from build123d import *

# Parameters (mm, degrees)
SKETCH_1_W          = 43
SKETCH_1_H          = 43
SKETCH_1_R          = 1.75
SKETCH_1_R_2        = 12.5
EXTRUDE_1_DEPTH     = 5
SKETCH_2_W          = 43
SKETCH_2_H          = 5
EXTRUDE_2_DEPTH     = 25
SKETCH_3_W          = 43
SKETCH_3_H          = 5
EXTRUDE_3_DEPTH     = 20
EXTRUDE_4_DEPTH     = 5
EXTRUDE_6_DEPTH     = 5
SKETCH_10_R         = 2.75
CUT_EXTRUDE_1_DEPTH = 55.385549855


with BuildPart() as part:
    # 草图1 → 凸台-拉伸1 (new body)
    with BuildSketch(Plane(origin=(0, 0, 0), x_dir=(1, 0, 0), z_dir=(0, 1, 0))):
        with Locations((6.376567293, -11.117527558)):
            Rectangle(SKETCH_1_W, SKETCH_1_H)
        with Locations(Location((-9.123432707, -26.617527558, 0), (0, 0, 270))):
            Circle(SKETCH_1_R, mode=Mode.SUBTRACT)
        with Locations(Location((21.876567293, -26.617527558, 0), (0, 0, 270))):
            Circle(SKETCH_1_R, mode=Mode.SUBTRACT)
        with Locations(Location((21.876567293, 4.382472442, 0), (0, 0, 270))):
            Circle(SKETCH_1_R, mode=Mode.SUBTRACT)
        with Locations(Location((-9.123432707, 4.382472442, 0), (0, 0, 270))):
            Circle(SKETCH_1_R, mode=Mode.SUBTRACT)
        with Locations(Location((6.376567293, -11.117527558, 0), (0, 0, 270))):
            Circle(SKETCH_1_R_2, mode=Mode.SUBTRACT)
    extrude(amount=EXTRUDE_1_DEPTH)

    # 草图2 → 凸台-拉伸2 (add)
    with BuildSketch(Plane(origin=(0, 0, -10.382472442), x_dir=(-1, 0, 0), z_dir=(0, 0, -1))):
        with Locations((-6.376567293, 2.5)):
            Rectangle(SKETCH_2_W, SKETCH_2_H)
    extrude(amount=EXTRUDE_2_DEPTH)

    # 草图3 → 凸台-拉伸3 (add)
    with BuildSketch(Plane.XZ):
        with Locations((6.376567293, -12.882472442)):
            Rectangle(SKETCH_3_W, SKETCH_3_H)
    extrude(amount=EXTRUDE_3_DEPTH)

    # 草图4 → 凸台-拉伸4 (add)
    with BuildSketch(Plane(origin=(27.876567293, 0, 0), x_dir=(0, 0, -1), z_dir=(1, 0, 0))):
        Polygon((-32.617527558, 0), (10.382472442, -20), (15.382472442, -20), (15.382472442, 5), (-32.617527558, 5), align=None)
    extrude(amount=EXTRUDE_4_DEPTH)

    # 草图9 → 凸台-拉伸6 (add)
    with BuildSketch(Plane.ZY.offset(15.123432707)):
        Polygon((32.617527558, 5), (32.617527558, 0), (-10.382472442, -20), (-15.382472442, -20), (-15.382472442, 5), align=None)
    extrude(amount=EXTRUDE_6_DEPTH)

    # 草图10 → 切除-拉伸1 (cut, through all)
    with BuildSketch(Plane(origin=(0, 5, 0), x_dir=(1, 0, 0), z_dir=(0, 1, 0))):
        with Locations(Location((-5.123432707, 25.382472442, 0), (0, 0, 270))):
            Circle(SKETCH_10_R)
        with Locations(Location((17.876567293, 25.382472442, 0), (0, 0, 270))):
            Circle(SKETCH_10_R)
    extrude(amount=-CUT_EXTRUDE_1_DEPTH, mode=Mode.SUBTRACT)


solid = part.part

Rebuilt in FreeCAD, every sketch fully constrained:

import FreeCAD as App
import Part
import Sketcher
Q = App.Units.Quantity

doc = App.newDocument("Part")
body = doc.addObject("PartDesign::Body", "Body")

# Sketch on XZ plane
sketch1 = doc.addObject("Sketcher::SketchObject", "Sketch")
body.addObject(sketch1)
sketch1.AttachmentSupport = (doc.XZ_Plane, [""])
sketch1.MapMode = "FlatFace"
sketch1.addGeometry(Part.LineSegment(App.Vector(-15.1, -10.4, 0), App.Vector(-15.1, 32.6, 0)), False)
sketch1.addGeometry(Part.LineSegment(App.Vector(-15.1, 32.6, 0), App.Vector(27.9, 32.6, 0)), False)
sketch1.addGeometry(Part.LineSegment(App.Vector(27.9, 32.6, 0), App.Vector(27.9, -10.4, 0)), False)
sketch1.addGeometry(Part.LineSegment(App.Vector(27.9, -10.4, 0), App.Vector(-15.1, -10.4, 0)), False)
sketch1.addGeometry(Part.Circle(App.Vector(-9.1, 26.6, 0), App.Vector(0, 0, 1), 1.8), False)
sketch1.addGeometry(Part.Circle(App.Vector(21.9, 26.6, 0), App.Vector(0, 0, 1), 1.8), False)
sketch1.addGeometry(Part.Circle(App.Vector(-9.1, -4.4, 0), App.Vector(0, 0, 1), 1.8), False)
sketch1.addGeometry(Part.Circle(App.Vector(6.4, 11.1, 0), App.Vector(0, 0, 1), 12.5), False)
sketch1.addGeometry(Part.Circle(App.Vector(21.9, -4.4, 0), App.Vector(0, 0, 1), 1.8), False)
sketch1.addConstraint(Sketcher.Constraint("Coincident", 0, 2, 1, 1))
sketch1.addConstraint(Sketcher.Constraint("Coincident", 1, 2, 2, 1))
sketch1.addConstraint(Sketcher.Constraint("Coincident", 2, 2, 3, 1))
sketch1.addConstraint(Sketcher.Constraint("Coincident", 3, 2, 0, 1))
sketch1.addConstraint(Sketcher.Constraint("Vertical", 0))
sketch1.addConstraint(Sketcher.Constraint("Horizontal", 1))
sketch1.addConstraint(Sketcher.Constraint("Vertical", 2))
sketch1.addConstraint(Sketcher.Constraint("Horizontal", 3))
sketch1.addConstraint(Sketcher.Constraint("Equal", 4, 5))
sketch1.addConstraint(Sketcher.Constraint("Equal", 5, 6))
sketch1.addConstraint(Sketcher.Constraint("Equal", 6, 8))
sketch1.addConstraint(Sketcher.Constraint("Horizontal", 4, 3, 5, 3))
sketch1.addConstraint(Sketcher.Constraint("Horizontal", 6, 3, 8, 3))
sketch1.addConstraint(Sketcher.Constraint("Vertical", 4, 3, 6, 3))
sketch1.addConstraint(Sketcher.Constraint("Vertical", 5, 3, 8, 3))
sketch1.addConstraint(Sketcher.Constraint("Equal", 3, 0))
sketch1.addConstraint(Sketcher.Constraint("Diameter", 7, Q("25 mm")))
sketch1.addConstraint(Sketcher.Constraint("Diameter", 4, Q("3.5 mm")))
sketch1.addConstraint(Sketcher.Constraint("DistanceX", 1, 1, 1, 2, Q("43 mm")))
sketch1.addConstraint(Sketcher.Constraint("DistanceX", 4, 3, 5, 3, Q("31 mm")))
sketch1.addConstraint(Sketcher.Constraint("DistanceY", 6, 3, 4, 3, Q("31 mm")))
sketch1.addConstraint(Sketcher.Constraint("DistanceX", 0, 2, 4, 3, Q("6 mm")))
sketch1.addConstraint(Sketcher.Constraint("DistanceY", 4, 3, 0, 2, Q("6 mm")))
sketch1.addConstraint(Sketcher.Constraint("DistanceX", 4, 3, 7, 3, Q("15.5 mm")))
sketch1.addConstraint(Sketcher.Constraint("DistanceY", 7, 3, 4, 3, Q("15.5 mm")))
sketch1.addConstraint(Sketcher.Constraint("DistanceX", 4, 3, -1, 1, Q("9.123433 mm")))
sketch1.addConstraint(Sketcher.Constraint("DistanceY", -1, 1, 4, 3, Q("26.617528 mm")))
pad1 = doc.addObject("PartDesign::Pad", "Pad")
body.addObject(pad1)
pad1.Profile = sketch1
pad1.Length = 5
pad1.Reversed = True

# Sketch on XY plane
sketch2 = doc.addObject("Sketcher::SketchObject", "Sketch001")
body.addObject(sketch2)
sketch2.AttachmentSupport = (doc.XY_Plane, [""])
sketch2.MapMode = "FlatFace"
sketch2.AttachmentOffset = App.Placement(App.Vector(0, 0, -10.382472), App.Rotation())
sketch2.addGeometry(Part.LineSegment(App.Vector(28, 5, 0), App.Vector(28, 0, 0)), False)
sketch2.addGeometry(Part.LineSegment(App.Vector(28, 0, 0), App.Vector(-15, 0, 0)), False)
sketch2.addGeometry(Part.LineSegment(App.Vector(-15, 0, 0), App.Vector(-15, 5, 0)), False)
sketch2.addGeometry(Part.LineSegment(App.Vector(-15, 5, 0), App.Vector(28, 5, 0)), False)
sketch2.addConstraint(Sketcher.Constraint("Coincident", 0, 2, 1, 1))
sketch2.addConstraint(Sketcher.Constraint("Coincident", 1, 2, 2, 1))
sketch2.addConstraint(Sketcher.Constraint("Coincident", 2, 2, 3, 1))
sketch2.addConstraint(Sketcher.Constraint("Coincident", 3, 2, 0, 1))
sketch2.addConstraint(Sketcher.Constraint("Vertical", 0))
sketch2.addConstraint(Sketcher.Constraint("Horizontal", 1))
sketch2.addConstraint(Sketcher.Constraint("Vertical", 2))
sketch2.addConstraint(Sketcher.Constraint("Horizontal", 3))
sketch2.addConstraint(Sketcher.Constraint("PointOnObject", 0, 2, -1))
sketch2.addConstraint(Sketcher.Constraint("DistanceX", 1, 2, 1, 1, Q("43 mm")))
sketch2.addConstraint(Sketcher.Constraint("DistanceY", 0, 2, 0, 1, Q("5 mm")))
sketch2.addConstraint(Sketcher.Constraint("DistanceX", -1, 1, 0, 2, Q("27.876567 mm")))
pad2 = doc.addObject("PartDesign::Pad", "Pad001")
body.addObject(pad2)
pad2.Profile = sketch2
pad2.Length = 25
pad2.Reversed = True

# Sketch on XZ plane
sketch3 = doc.addObject("Sketcher::SketchObject", "Sketch002")
body.addObject(sketch3)
sketch3.AttachmentSupport = (doc.XZ_Plane, [""])
sketch3.MapMode = "FlatFace"
sketch3.addGeometry(Part.LineSegment(App.Vector(-15, -10, 0), App.Vector(-15, -15, 0)), False)
sketch3.addGeometry(Part.LineSegment(App.Vector(-15, -15, 0), App.Vector(28, -15, 0)), False)
sketch3.addGeometry(Part.LineSegment(App.Vector(28, -15, 0), App.Vector(28, -10, 0)), False)
sketch3.addGeometry(Part.LineSegment(App.Vector(28, -10, 0), App.Vector(-15, -10, 0)), False)
sketch3.addConstraint(Sketcher.Constraint("Coincident", 0, 2, 1, 1))
sketch3.addConstraint(Sketcher.Constraint("Coincident", 1, 2, 2, 1))
sketch3.addConstraint(Sketcher.Constraint("Coincident", 2, 2, 3, 1))
sketch3.addConstraint(Sketcher.Constraint("Coincident", 3, 2, 0, 1))
sketch3.addConstraint(Sketcher.Constraint("Vertical", 0))
sketch3.addConstraint(Sketcher.Constraint("Horizontal", 1))
sketch3.addConstraint(Sketcher.Constraint("Vertical", 2))
sketch3.addConstraint(Sketcher.Constraint("Horizontal", 3))
sketch3.addConstraint(Sketcher.Constraint("DistanceX", 1, 1, 1, 2, Q("43 mm")))
sketch3.addConstraint(Sketcher.Constraint("DistanceY", 0, 2, 0, 1, Q("5 mm")))
sketch3.addConstraint(Sketcher.Constraint("DistanceX", 0, 2, -1, 1, Q("15.123433 mm")))
sketch3.addConstraint(Sketcher.Constraint("DistanceY", 0, 2, -1, 1, Q("15.382472 mm")))
pad3 = doc.addObject("PartDesign::Pad", "Pad002")
body.addObject(pad3)
pad3.Profile = sketch3
pad3.Length = 20

# Sketch on YZ plane
sketch4 = doc.addObject("Sketcher::SketchObject", "Sketch003")
body.addObject(sketch4)
sketch4.AttachmentSupport = (doc.YZ_Plane, [""])
sketch4.MapMode = "FlatFace"
sketch4.AttachmentOffset = App.Placement(App.Vector(0, 0, 27.876567), App.Rotation())
sketch4.addGeometry(Part.LineSegment(App.Vector(0, 33, 0), App.Vector(-20, -10, 0)), False)
sketch4.addGeometry(Part.LineSegment(App.Vector(-20, -10, 0), App.Vector(-20, -15, 0)), False)
sketch4.addGeometry(Part.LineSegment(App.Vector(-20, -15, 0), App.Vector(5, -15, 0)), False)
sketch4.addGeometry(Part.LineSegment(App.Vector(5, -15, 0), App.Vector(5, 33, 0)), False)
sketch4.addGeometry(Part.LineSegment(App.Vector(5, 33, 0), App.Vector(0, 33, 0)), False)
sketch4.addConstraint(Sketcher.Constraint("Coincident", 0, 2, 1, 1))
sketch4.addConstraint(Sketcher.Constraint("Coincident", 1, 2, 2, 1))
sketch4.addConstraint(Sketcher.Constraint("Coincident", 2, 2, 3, 1))
sketch4.addConstraint(Sketcher.Constraint("Coincident", 3, 2, 4, 1))
sketch4.addConstraint(Sketcher.Constraint("Coincident", 4, 2, 0, 1))
sketch4.addConstraint(Sketcher.Constraint("Vertical", 1))
sketch4.addConstraint(Sketcher.Constraint("Horizontal", 2))
sketch4.addConstraint(Sketcher.Constraint("Vertical", 3))
sketch4.addConstraint(Sketcher.Constraint("Horizontal", 4))
sketch4.addConstraint(Sketcher.Constraint("PointOnObject", 4, 2, -2))
sketch4.addConstraint(Sketcher.Constraint("Equal", 4, 1))
sketch4.addConstraint(Sketcher.Constraint("DistanceX", 2, 1, 2, 2, Q("25 mm")))
sketch4.addConstraint(Sketcher.Constraint("DistanceX", 4, 2, 4, 1, Q("5 mm")))
sketch4.addConstraint(Sketcher.Constraint("DistanceY", 3, 1, 3, 2, Q("48 mm")))
sketch4.addConstraint(Sketcher.Constraint("DistanceY", 0, 2, -1, 1, Q("10.382472 mm")))
pad4 = doc.addObject("PartDesign::Pad", "Pad003")
body.addObject(pad4)
pad4.Profile = sketch4
pad4.Length = 5

# Sketch on YZ plane
sketch5 = doc.addObject("Sketcher::SketchObject", "Sketch004")
body.addObject(sketch5)
sketch5.AttachmentSupport = (doc.YZ_Plane, [""])
sketch5.MapMode = "FlatFace"
sketch5.AttachmentOffset = App.Placement(App.Vector(0, 0, -15.123433), App.Rotation())
sketch5.addGeometry(Part.LineSegment(App.Vector(0, 33, 0), App.Vector(5, 33, 0)), False)
sketch5.addGeometry(Part.LineSegment(App.Vector(5, 33, 0), App.Vector(5, -15, 0)), False)
sketch5.addGeometry(Part.LineSegment(App.Vector(5, -15, 0), App.Vector(-20, -15, 0)), False)
sketch5.addGeometry(Part.LineSegment(App.Vector(-20, -15, 0), App.Vector(-20, -10, 0)), False)
sketch5.addGeometry(Part.LineSegment(App.Vector(-20, -10, 0), App.Vector(0, 33, 0)), False)
sketch5.addConstraint(Sketcher.Constraint("Coincident", 0, 2, 1, 1))
sketch5.addConstraint(Sketcher.Constraint("Coincident", 1, 2, 2, 1))
sketch5.addConstraint(Sketcher.Constraint("Coincident", 2, 2, 3, 1))
sketch5.addConstraint(Sketcher.Constraint("Coincident", 3, 2, 4, 1))
sketch5.addConstraint(Sketcher.Constraint("Coincident", 4, 2, 0, 1))
sketch5.addConstraint(Sketcher.Constraint("Horizontal", 0))
sketch5.addConstraint(Sketcher.Constraint("Vertical", 1))
sketch5.addConstraint(Sketcher.Constraint("Horizontal", 2))
sketch5.addConstraint(Sketcher.Constraint("Vertical", 3))
sketch5.addConstraint(Sketcher.Constraint("PointOnObject", 4, 2, -2))
sketch5.addConstraint(Sketcher.Constraint("Equal", 0, 3))
sketch5.addConstraint(Sketcher.Constraint("DistanceX", 0, 1, 0, 2, Q("5 mm")))
sketch5.addConstraint(Sketcher.Constraint("DistanceX", 2, 2, 2, 1, Q("25 mm")))
sketch5.addConstraint(Sketcher.Constraint("DistanceY", 1, 2, 1, 1, Q("48 mm")))
sketch5.addConstraint(Sketcher.Constraint("DistanceY", -1, 1, 0, 2, Q("32.617528 mm")))
pad5 = doc.addObject("PartDesign::Pad", "Pad004")
body.addObject(pad5)
pad5.Profile = sketch5
pad5.Length = 5
pad5.Reversed = True

# Sketch on XZ plane
sketch6 = doc.addObject("Sketcher::SketchObject", "Sketch005")
body.addObject(sketch6)
sketch6.AttachmentSupport = (doc.XZ_Plane, [""])
sketch6.MapMode = "FlatFace"
sketch6.AttachmentOffset = App.Placement(App.Vector(0, 0, -5), App.Rotation())
sketch6.addGeometry(Part.Circle(App.Vector(-5.1, -25.4, 0), App.Vector(0, 0, 1), 2.8), False)
sketch6.addGeometry(Part.Circle(App.Vector(17.9, -25.4, 0), App.Vector(0, 0, 1), 2.8), False)
sketch6.addConstraint(Sketcher.Constraint("Equal", 0, 1))
sketch6.addConstraint(Sketcher.Constraint("Horizontal", 0, 3, 1, 3))
sketch6.addConstraint(Sketcher.Constraint("Diameter", 0, Q("5.5 mm")))
sketch6.addConstraint(Sketcher.Constraint("DistanceX", 0, 3, 1, 3, Q("23 mm")))
sketch6.addConstraint(Sketcher.Constraint("DistanceX", 0, 3, -1, 1, Q("5.123433 mm")))
sketch6.addConstraint(Sketcher.Constraint("DistanceY", 0, 3, -1, 1, Q("25.382472 mm")))
pocket1 = doc.addObject("PartDesign::Pocket", "Pocket")
body.addObject(pocket1)
pocket1.Profile = sketch6
pocket1.Type = "ThroughAll"
pocket1.Reversed = True

doc.recompute()
